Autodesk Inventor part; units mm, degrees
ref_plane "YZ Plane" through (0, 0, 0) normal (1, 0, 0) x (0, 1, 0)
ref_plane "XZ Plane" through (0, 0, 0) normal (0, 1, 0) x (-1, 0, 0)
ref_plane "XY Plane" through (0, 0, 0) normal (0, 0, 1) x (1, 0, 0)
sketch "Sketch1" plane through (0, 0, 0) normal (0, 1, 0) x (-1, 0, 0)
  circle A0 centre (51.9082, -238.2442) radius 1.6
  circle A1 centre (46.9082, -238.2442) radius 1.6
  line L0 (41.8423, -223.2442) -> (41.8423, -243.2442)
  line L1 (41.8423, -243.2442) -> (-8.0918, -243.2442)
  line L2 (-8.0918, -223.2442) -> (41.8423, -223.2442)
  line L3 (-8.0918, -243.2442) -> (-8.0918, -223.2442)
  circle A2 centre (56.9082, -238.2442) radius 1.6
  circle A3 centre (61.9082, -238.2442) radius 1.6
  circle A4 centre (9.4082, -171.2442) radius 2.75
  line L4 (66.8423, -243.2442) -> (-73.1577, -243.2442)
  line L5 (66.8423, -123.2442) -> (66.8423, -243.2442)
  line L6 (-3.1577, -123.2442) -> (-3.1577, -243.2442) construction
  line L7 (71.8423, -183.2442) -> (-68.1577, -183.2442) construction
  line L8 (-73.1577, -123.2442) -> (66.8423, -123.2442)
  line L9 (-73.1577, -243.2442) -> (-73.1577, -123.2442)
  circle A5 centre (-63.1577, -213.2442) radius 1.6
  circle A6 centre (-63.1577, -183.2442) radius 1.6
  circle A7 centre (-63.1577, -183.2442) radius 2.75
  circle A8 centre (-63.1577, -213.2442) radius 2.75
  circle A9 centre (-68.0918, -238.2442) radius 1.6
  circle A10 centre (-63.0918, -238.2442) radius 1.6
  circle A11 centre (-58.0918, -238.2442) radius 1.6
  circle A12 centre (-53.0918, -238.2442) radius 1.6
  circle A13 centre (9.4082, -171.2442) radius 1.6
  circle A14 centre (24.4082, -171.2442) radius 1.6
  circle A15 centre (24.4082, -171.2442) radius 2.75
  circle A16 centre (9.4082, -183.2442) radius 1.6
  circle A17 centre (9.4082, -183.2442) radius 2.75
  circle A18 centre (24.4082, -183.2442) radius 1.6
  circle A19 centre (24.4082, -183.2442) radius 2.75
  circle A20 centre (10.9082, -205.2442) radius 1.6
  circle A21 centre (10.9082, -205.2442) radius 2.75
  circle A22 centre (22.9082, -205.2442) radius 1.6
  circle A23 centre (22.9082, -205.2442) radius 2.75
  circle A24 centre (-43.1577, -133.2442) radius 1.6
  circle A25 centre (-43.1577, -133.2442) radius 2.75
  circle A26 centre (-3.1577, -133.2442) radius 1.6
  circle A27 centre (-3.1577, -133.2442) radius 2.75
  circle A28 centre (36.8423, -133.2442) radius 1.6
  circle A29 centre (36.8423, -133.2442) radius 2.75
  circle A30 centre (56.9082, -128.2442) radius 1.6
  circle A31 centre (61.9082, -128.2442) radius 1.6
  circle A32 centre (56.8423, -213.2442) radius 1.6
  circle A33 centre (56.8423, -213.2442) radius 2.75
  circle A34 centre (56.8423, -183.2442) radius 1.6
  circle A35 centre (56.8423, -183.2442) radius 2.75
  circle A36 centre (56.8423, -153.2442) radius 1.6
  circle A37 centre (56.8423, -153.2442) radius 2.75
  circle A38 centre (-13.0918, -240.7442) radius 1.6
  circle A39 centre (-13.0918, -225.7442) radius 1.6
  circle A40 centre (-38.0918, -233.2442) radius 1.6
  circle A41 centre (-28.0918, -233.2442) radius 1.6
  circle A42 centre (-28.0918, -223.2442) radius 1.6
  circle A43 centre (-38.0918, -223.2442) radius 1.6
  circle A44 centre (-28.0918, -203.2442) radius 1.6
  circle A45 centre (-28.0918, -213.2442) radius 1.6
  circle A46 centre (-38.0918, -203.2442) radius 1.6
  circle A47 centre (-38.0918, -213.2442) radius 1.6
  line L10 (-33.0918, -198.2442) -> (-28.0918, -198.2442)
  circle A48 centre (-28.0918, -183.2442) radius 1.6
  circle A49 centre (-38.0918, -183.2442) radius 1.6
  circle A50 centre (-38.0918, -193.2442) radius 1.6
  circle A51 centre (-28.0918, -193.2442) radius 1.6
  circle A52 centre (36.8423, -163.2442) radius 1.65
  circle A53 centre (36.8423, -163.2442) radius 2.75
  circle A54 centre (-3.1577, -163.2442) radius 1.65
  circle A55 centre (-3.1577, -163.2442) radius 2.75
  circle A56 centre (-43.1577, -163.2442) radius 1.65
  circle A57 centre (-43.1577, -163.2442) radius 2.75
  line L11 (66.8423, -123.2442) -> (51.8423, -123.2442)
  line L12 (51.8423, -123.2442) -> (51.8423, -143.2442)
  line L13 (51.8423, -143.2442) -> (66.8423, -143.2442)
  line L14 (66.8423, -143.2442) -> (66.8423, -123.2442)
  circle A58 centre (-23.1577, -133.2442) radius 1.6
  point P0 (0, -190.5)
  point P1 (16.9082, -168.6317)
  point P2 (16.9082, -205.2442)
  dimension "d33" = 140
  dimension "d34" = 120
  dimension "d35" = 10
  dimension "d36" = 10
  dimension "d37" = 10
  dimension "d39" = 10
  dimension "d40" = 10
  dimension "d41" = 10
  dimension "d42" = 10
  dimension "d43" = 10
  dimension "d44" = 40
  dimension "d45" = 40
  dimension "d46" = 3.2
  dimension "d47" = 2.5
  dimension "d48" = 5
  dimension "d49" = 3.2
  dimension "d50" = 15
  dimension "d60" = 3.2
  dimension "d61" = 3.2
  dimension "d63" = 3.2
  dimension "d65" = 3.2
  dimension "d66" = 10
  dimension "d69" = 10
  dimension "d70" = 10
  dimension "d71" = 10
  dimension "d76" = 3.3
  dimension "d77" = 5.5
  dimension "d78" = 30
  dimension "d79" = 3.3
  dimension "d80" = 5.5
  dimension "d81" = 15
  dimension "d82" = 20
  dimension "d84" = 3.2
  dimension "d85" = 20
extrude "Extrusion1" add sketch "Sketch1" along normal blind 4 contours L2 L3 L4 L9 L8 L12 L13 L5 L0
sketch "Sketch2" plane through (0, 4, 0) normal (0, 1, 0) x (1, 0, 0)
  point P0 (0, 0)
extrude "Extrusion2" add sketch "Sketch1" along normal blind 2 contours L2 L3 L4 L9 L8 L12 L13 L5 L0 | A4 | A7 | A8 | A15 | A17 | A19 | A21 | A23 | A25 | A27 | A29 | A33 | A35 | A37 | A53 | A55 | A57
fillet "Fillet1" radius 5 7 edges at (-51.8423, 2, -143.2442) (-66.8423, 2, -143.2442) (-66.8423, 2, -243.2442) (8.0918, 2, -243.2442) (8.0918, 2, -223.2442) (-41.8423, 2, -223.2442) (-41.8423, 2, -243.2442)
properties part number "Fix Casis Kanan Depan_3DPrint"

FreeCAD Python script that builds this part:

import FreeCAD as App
import Part
import Sketcher
from FreeCAD import Vector


def edges_at(feature, points):
    """Names of the edges that pass closest to the given points."""
    edges = feature.Shape.Edges
    near = lambda p: min(range(len(edges)), key=lambda i: edges[i].distToShape(Part.Vertex(*p))[0])
    return sorted({f"Edge{near(p) + 1}" for p in points})


def add_polygon(sketch, points):
    """Adds a closed chain of lines whose ends are joined by coincident constraints."""
    first, n = sketch.GeometryCount, len(points)
    for a, b in zip(points, points[1:] + points[:1]):
        sketch.addGeometry(Part.LineSegment(App.Vector(*a, 0), App.Vector(*b, 0)), False)
    for i in range(n):
        sketch.addConstraint(Sketcher.Constraint("Coincident", first + i, 2, first + (i + 1) % n, 1))

doc = App.newDocument("Part")
body = doc.addObject("PartDesign::Body", "Body")

# Sketch on XZ plane
sketch1 = body.newObject("Sketcher::SketchObject", "Sketch")
sketch1.AttachmentSupport = (doc.getObject("XZ_Plane"), [""])
sketch1.MapMode = "FlatFace"
add_polygon(sketch1, [(8.0918, -223.2442), (-41.8423, -223.2442), (-41.8423, -243.2442), (-66.8423, -243.2442), (-66.8423, -143.2442), (-51.8423, -143.2442), (-51.8423, -123.2442), (73.1577, -123.2442), (73.1577, -243.2442), (8.0918, -243.2442)])  # lines 0-9
sketch1.addGeometry(Part.Circle(Vector(68.0918, -238.2442, 0), Vector(0, 0, 1), 1.6), False)  # 10
sketch1.addGeometry(Part.Circle(Vector(63.0918, -238.2442, 0), Vector(0, 0, 1), 1.6), False)  # 11
sketch1.addGeometry(Part.Circle(Vector(58.0918, -238.2442, 0), Vector(0, 0, 1), 1.6), False)  # 12
sketch1.addGeometry(Part.Circle(Vector(53.0918, -238.2442, 0), Vector(0, 0, 1), 1.6), False)  # 13
sketch1.addGeometry(Part.Circle(Vector(38.0918, -233.2442, 0), Vector(0, 0, 1), 1.6), False)  # 14
sketch1.addGeometry(Part.Circle(Vector(28.0918, -233.2442, 0), Vector(0, 0, 1), 1.6), False)  # 15
sketch1.addGeometry(Part.Circle(Vector(13.0918, -240.7442, 0), Vector(0, 0, 1), 1.6), False)  # 16
sketch1.addGeometry(Part.Circle(Vector(38.0918, -223.2442, 0), Vector(0, 0, 1), 1.6), False)  # 17
sketch1.addGeometry(Part.Circle(Vector(28.0918, -223.2442, 0), Vector(0, 0, 1), 1.6), False)  # 18
sketch1.addGeometry(Part.Circle(Vector(13.0918, -225.7442, 0), Vector(0, 0, 1), 1.6), False)  # 19
sketch1.addGeometry(Part.Circle(Vector(63.1577, -213.2442, 0), Vector(0, 0, 1), 2.75), False)  # 20
sketch1.addGeometry(Part.Circle(Vector(38.0918, -213.2442, 0), Vector(0, 0, 1), 1.6), False)  # 21
sketch1.addGeometry(Part.Circle(Vector(28.0918, -213.2442, 0), Vector(0, 0, 1), 1.6), False)  # 22
sketch1.addGeometry(Part.Circle(Vector(38.0918, -203.2442, 0), Vector(0, 0, 1), 1.6), False)  # 23
sketch1.addGeometry(Part.Circle(Vector(28.0918, -203.2442, 0), Vector(0, 0, 1), 1.6), False)  # 24
sketch1.addGeometry(Part.Circle(Vector(38.0918, -193.2442, 0), Vector(0, 0, 1), 1.6), False)  # 25
sketch1.addGeometry(Part.Circle(Vector(28.0918, -193.2442, 0), Vector(0, 0, 1), 1.6), False)  # 26
sketch1.addGeometry(Part.Circle(Vector(-46.9082, -238.2442, 0), Vector(0, 0, 1), 1.6), False)  # 27
sketch1.addGeometry(Part.Circle(Vector(-51.9082, -238.2442, 0), Vector(0, 0, 1), 1.6), False)  # 28
sketch1.addGeometry(Part.Circle(Vector(-56.9082, -238.2442, 0), Vector(0, 0, 1), 1.6), False)  # 29
sketch1.addGeometry(Part.Circle(Vector(-61.9082, -238.2442, 0), Vector(0, 0, 1), 1.6), False)  # 30
sketch1.addGeometry(Part.Circle(Vector(-10.9082, -205.2442, 0), Vector(0, 0, 1), 2.75), False)  # 31
sketch1.addGeometry(Part.Circle(Vector(-22.9082, -205.2442, 0), Vector(0, 0, 1), 2.75), False)  # 32
sketch1.addGeometry(Part.Circle(Vector(-56.8423, -213.2442, 0), Vector(0, 0, 1), 2.75), False)  # 33
sketch1.addGeometry(Part.Circle(Vector(63.1577, -183.2442, 0), Vector(0, 0, 1), 2.75), False)  # 34
sketch1.addGeometry(Part.Circle(Vector(43.1577, -163.2442, 0), Vector(0, 0, 1), 2.75), False)  # 35
sketch1.addGeometry(Part.Circle(Vector(38.0918, -183.2442, 0), Vector(0, 0, 1), 1.6), False)  # 36
sketch1.addGeometry(Part.Circle(Vector(28.0918, -183.2442, 0), Vector(0, 0, 1), 1.6), False)  # 37
sketch1.addGeometry(Part.Circle(Vector(43.1577, -133.2442, 0), Vector(0, 0, 1), 2.75), False)  # 38
sketch1.addGeometry(Part.Circle(Vector(23.1577, -133.2442, 0), Vector(0, 0, 1), 1.6), False)  # 39
sketch1.addGeometry(Part.Circle(Vector(-9.4082, -183.2442, 0), Vector(0, 0, 1), 2.75), False)  # 40
sketch1.addGeometry(Part.Circle(Vector(-9.4082, -171.2442, 0), Vector(0, 0, 1), 2.75), False)  # 41
sketch1.addGeometry(Part.Circle(Vector(-24.4082, -183.2442, 0), Vector(0, 0, 1), 2.75), False)  # 42
sketch1.addGeometry(Part.Circle(Vector(-24.4082, -171.2442, 0), Vector(0, 0, 1), 2.75), False)  # 43
sketch1.addGeometry(Part.Circle(Vector(3.1577, -163.2442, 0), Vector(0, 0, 1), 2.75), False)  # 44
sketch1.addGeometry(Part.Circle(Vector(-56.8423, -183.2442, 0), Vector(0, 0, 1), 2.75), False)  # 45
sketch1.addGeometry(Part.Circle(Vector(-36.8423, -163.2442, 0), Vector(0, 0, 1), 2.75), False)  # 46
sketch1.addGeometry(Part.Circle(Vector(3.1577, -133.2442, 0), Vector(0, 0, 1), 2.75), False)  # 47
sketch1.addGeometry(Part.Circle(Vector(-56.8423, -153.2442, 0), Vector(0, 0, 1), 2.75), False)  # 48
sketch1.addGeometry(Part.Circle(Vector(-36.8423, -133.2442, 0), Vector(0, 0, 1), 2.75), False)  # 49
sketch1.addConstraint(Sketcher.Constraint("Horizontal", 0))
sketch1.addConstraint(Sketcher.Constraint("Vertical", 1))
sketch1.addConstraint(Sketcher.Constraint("Horizontal", 2))
sketch1.addConstraint(Sketcher.Constraint("Vertical", 3))
sketch1.addConstraint(Sketcher.Constraint("Horizontal", 4))
sketch1.addConstraint(Sketcher.Constraint("Vertical", 5))
sketch1.addConstraint(Sketcher.Constraint("Horizontal", 6))
sketch1.addConstraint(Sketcher.Constraint("Vertical", 7))
sketch1.addConstraint(Sketcher.Constraint("Horizontal", 8))
sketch1.addConstraint(Sketcher.Constraint("Vertical", 9))
sketch1.addConstraint(Sketcher.Constraint("Equal", 10, 11))
sketch1.addConstraint(Sketcher.Constraint("Equal", 11, 12))
sketch1.addConstraint(Sketcher.Constraint("Equal", 12, 13))
sketch1.addConstraint(Sketcher.Constraint("Equal", 13, 14))
sketch1.addConstraint(Sketcher.Constraint("Equal", 14, 15))
sketch1.addConstraint(Sketcher.Constraint("Equal", 15, 16))
sketch1.addConstraint(Sketcher.Constraint("Equal", 16, 17))
sketch1.addConstraint(Sketcher.Constraint("Equal", 17, 18))
sketch1.addConstraint(Sketcher.Constraint("Equal", 18, 19))
sketch1.addConstraint(Sketcher.Constraint("Equal", 19, 21))
sketch1.addConstraint(Sketcher.Constraint("Equal", 21, 22))
sketch1.addConstraint(Sketcher.Constraint("Equal", 22, 23))
sketch1.addConstraint(Sketcher.Constraint("Equal", 23, 24))
sketch1.addConstraint(Sketcher.Constraint("Equal", 24, 25))
sketch1.addConstraint(Sketcher.Constraint("Equal", 25, 26))
sketch1.addConstraint(Sketcher.Constraint("Equal", 26, 27))
sketch1.addConstraint(Sketcher.Constraint("Equal", 27, 28))
sketch1.addConstraint(Sketcher.Constraint("Equal", 28, 29))
sketch1.addConstraint(Sketcher.Constraint("Equal", 29, 30))
sketch1.addConstraint(Sketcher.Constraint("Equal", 20, 31))
sketch1.addConstraint(Sketcher.Constraint("Equal", 31, 32))
sketch1.addConstraint(Sketcher.Constraint("Equal", 32, 33))
sketch1.addConstraint(Sketcher.Constraint("Equal", 33, 34))
sketch1.addConstraint(Sketcher.Constraint("Equal", 34, 35))
sketch1.addConstraint(Sketcher.Constraint("Equal", 30, 36))
sketch1.addConstraint(Sketcher.Constraint("Equal", 36, 37))
sketch1.addConstraint(Sketcher.Constraint("Equal", 35, 38))
sketch1.addConstraint(Sketcher.Constraint("Equal", 37, 39))
sketch1.addConstraint(Sketcher.Constraint("Equal", 38, 40))
sketch1.addConstraint(Sketcher.Constraint("Equal", 40, 41))
sketch1.addConstraint(Sketcher.Constraint("Equal", 41, 42))
sketch1.addConstraint(Sketcher.Constraint("Equal", 42, 43))
sketch1.addConstraint(Sketcher.Constraint("Equal", 43, 44))
sketch1.addConstraint(Sketcher.Constraint("Equal", 44, 45))
sketch1.addConstraint(Sketcher.Constraint("Equal", 45, 46))
sketch1.addConstraint(Sketcher.Constraint("Equal", 46, 47))
sketch1.addConstraint(Sketcher.Constraint("Equal", 47, 48))
sketch1.addConstraint(Sketcher.Constraint("Equal", 48, 49))
sketch1.addConstraint(Sketcher.Constraint("Horizontal", 10, 3, 11, 3))
sketch1.addConstraint(Sketcher.Constraint("Horizontal", 11, 3, 12, 3))
sketch1.addConstraint(Sketcher.Constraint("Horizontal", 12, 3, 13, 3))
sketch1.addConstraint(Sketcher.Constraint("Horizontal", 14, 3, 15, 3))
sketch1.addConstraint(Sketcher.Constraint("Horizontal", 17, 3, 18, 3))
sketch1.addConstraint(Sketcher.Constraint("Horizontal", 20, 3, 21, 3))
sketch1.addConstraint(Sketcher.Constraint("Horizontal", 21, 3, 22, 3))
sketch1.addConstraint(Sketcher.Constraint("Horizontal", 23, 3, 24, 3))
sketch1.addConstraint(Sketcher.Constraint("Horizontal", 25, 3, 26, 3))
sketch1.addConstraint(Sketcher.Constraint("Horizontal", 13, 3, 27, 3))
sketch1.addConstraint(Sketcher.Constraint("Horizontal", 27, 3, 28, 3))
sketch1.addConstraint(Sketcher.Constraint("Horizontal", 28, 3, 29, 3))
sketch1.addConstraint(Sketcher.Constraint("Horizontal", 29, 3, 30, 3))
sketch1.addConstraint(Sketcher.Constraint("Horizontal", 31, 3, 32, 3))
sketch1.addConstraint(Sketcher.Constraint("Horizontal", 22, 3, 33, 3))
sketch1.addConstraint(Sketcher.Constraint("Horizontal", 34, 3, 36, 3))
sketch1.addConstraint(Sketcher.Constraint("Horizontal", 36, 3, 37, 3))
sketch1.addConstraint(Sketcher.Constraint("Horizontal", 38, 3, 39, 3))
sketch1.addConstraint(Sketcher.Constraint("Horizontal", 37, 3, 40, 3))
sketch1.addConstraint(Sketcher.Constraint("Horizontal", 40, 3, 42, 3))
sketch1.addConstraint(Sketcher.Constraint("Horizontal", 41, 3, 43, 3))
sketch1.addConstraint(Sketcher.Constraint("Horizontal", 35, 3, 44, 3))
sketch1.addConstraint(Sketcher.Constraint("Horizontal", 42, 3, 45, 3))
sketch1.addConstraint(Sketcher.Constraint("Horizontal", 44, 3, 46, 3))
sketch1.addConstraint(Sketcher.Constraint("Horizontal", 39, 3, 47, 3))
sketch1.addConstraint(Sketcher.Constraint("Horizontal", 47, 3, 49, 3))
sketch1.addConstraint(Sketcher.Constraint("Horizontal", 18, 3, 0, 2))
sketch1.addConstraint(Sketcher.Constraint("Horizontal", 2, 2, 7, 2))
sketch1.addConstraint(Sketcher.Constraint("Vertical", 14, 3, 17, 3))
sketch1.addConstraint(Sketcher.Constraint("Vertical", 15, 3, 18, 3))
sketch1.addConstraint(Sketcher.Constraint("Vertical", 16, 3, 19, 3))
sketch1.addConstraint(Sketcher.Constraint("Vertical", 17, 3, 21, 3))
sketch1.addConstraint(Sketcher.Constraint("Vertical", 18, 3, 22, 3))
sketch1.addConstraint(Sketcher.Constraint("Vertical", 21, 3, 23, 3))
sketch1.addConstraint(Sketcher.Constraint("Vertical", 22, 3, 24, 3))
sketch1.addConstraint(Sketcher.Constraint("Vertical", 23, 3, 25, 3))
sketch1.addConstraint(Sketcher.Constraint("Vertical", 24, 3, 26, 3))
sketch1.addConstraint(Sketcher.Constraint("Vertical", 20, 3, 34, 3))
sketch1.addConstraint(Sketcher.Constraint("Vertical", 25, 3, 36, 3))
sketch1.addConstraint(Sketcher.Constraint("Vertical", 26, 3, 37, 3))
sketch1.addConstraint(Sketcher.Constraint("Vertical", 35, 3, 38, 3))
sketch1.addConstraint(Sketcher.Constraint("Vertical", 40, 3, 41, 3))
sketch1.addConstraint(Sketcher.Constraint("Vertical", 42, 3, 43, 3))
sketch1.addConstraint(Sketcher.Constraint("Vertical", 33, 3, 45, 3))
sketch1.addConstraint(Sketcher.Constraint("Vertical", 44, 3, 47, 3))
sketch1.addConstraint(Sketcher.Constraint("Vertical", 45, 3, 48, 3))
sketch1.addConstraint(Sketcher.Constraint("Vertical", 46, 3, 49, 3))
sketch1.addConstraint(Sketcher.Constraint("Equal", 1, 5))
sketch1.addConstraint(Sketcher.Constraint("Diameter", 10, 3.2))
sketch1.addConstraint(Sketcher.Constraint("Diameter", 20, 5.5))
sketch1.addConstraint(Sketcher.Constraint("DistanceX", 4, 1, 4, 2, 15.0))
sketch1.addConstraint(Sketcher.Constraint("DistanceY", 1, 2, 1, 1, 20.0))
sketch1.addConstraint(Sketcher.Constraint("DistanceY", 7, 2, 7, 1, 120.0))
sketch1.addConstraint(Sketcher.Constraint("DistanceX", 11, 3, 10, 3, 5.0))
sketch1.addConstraint(Sketcher.Constraint("DistanceX", 12, 3, 11, 3, 5.0))
sketch1.addConstraint(Sketcher.Constraint("DistanceX", 13, 3, 12, 3, 5.0))
sketch1.addConstraint(Sketcher.Constraint("DistanceX", 14, 3, 13, 3, 15.0))
sketch1.addConstraint(Sketcher.Constraint("DistanceY", 13, 3, 14, 3, 5.0))
sketch1.addConstraint(Sketcher.Constraint("DistanceX", 15, 3, 14, 3, 10.0))
sketch1.addConstraint(Sketcher.Constraint("DistanceX", 16, 3, 15, 3, 15.0))
sketch1.addConstraint(Sketcher.Constraint("DistanceY", 14, 3, 17, 3, 10.0))
sketch1.addConstraint(Sketcher.Constraint("DistanceY", 16, 3, 19, 3, 15.0))
sketch1.addConstraint(Sketcher.Constraint("DistanceY", 17, 3, 20, 3, 10.0))
sketch1.addConstraint(Sketcher.Constraint("DistanceY", 21, 3, 23, 3, 10.0))
sketch1.addConstraint(Sketcher.Constraint("DistanceY", 23, 3, 25, 3, 10.0))
sketch1.addConstraint(Sketcher.Constraint("DistanceX", 28, 3, 27, 3, 5.0))
sketch1.addConstraint(Sketcher.Constraint("DistanceX", 29, 3, 28, 3, 5.0))
sketch1.addConstraint(Sketcher.Constraint("DistanceX", 30, 3, 29, 3, 5.0))
sketch1.addConstraint(Sketcher.Constraint("DistanceY", 25, 3, 34, 3, 10.0))
sketch1.addConstraint(Sketcher.Constraint("DistanceX", 35, 3, 34, 3, 20.0))
sketch1.addConstraint(Sketcher.Constraint("DistanceY", 34, 3, 35, 3, 20.0))
sketch1.addConstraint(Sketcher.Constraint("DistanceY", 35, 3, 38, 3, 30.0))
sketch1.addConstraint(Sketcher.Constraint("DistanceX", 39, 3, 38, 3, 20.0))
sketch1.addConstraint(Sketcher.Constraint("DistanceX", 42, 3, 40, 3, 15.0))
sketch1.addConstraint(Sketcher.Constraint("DistanceX", 45, 3, 46, 3, 20.0))
sketch1.addConstraint(Sketcher.Constraint("DistanceX", 47, 3, 39, 3, 20.0))
sketch1.addConstraint(Sketcher.Constraint("DistanceY", 46, 3, 48, 3, 10.0))
sketch1.addConstraint(Sketcher.Constraint("DistanceX", 49, 3, 47, 3, 40.0))
sketch1.addConstraint(Sketcher.Constraint("DistanceX", 33, 3, 0, 2, 15.0))
sketch1.addConstraint(Sketcher.Constraint("DistanceX", 3, 2, 48, 3, 10.0))
sketch1.addConstraint(Sketcher.Constraint("DistanceX", 38, 3, 6, 2, 30.0))
sketch1.addConstraint(Sketcher.Constraint("DistanceX", 8, 2, 16, 3, 5.0))
sketch1.addConstraint(Sketcher.Constraint("DistanceY", 16, 3, 13, 3, 2.5))
sketch1.addConstraint(Sketcher.Constraint("DistanceX", 27, 3, 16, 3, 60.0))
sketch1.addConstraint(Sketcher.Constraint("DistanceX", 31, 3, 19, 3, 24.0))
sketch1.addConstraint(Sketcher.Constraint("DistanceY", 31, 3, 24, 3, 2.0))
sketch1.addConstraint(Sketcher.Constraint("DistanceX", 32, 3, 31, 3, 12.0))
sketch1.addConstraint(Sketcher.Constraint("DistanceY", 40, 3, 41, 3, 12.0))
sketch1.addConstraint(Sketcher.Constraint("DistanceX", 31, 3, 40, 3, 1.5))
sketch1.addConstraint(Sketcher.Constraint("DistanceX", 0, 2, 0, 1, 49.934))
sketch1.addConstraint(Sketcher.Constraint("DistanceX", -1, 1, 10, 3, 68.0918))
sketch1.addConstraint(Sketcher.Constraint("DistanceY", 10, 3, -1, 1, 238.2442))
pad1 = body.newObject("PartDesign::Pad", "Pad")
pad1.Profile = sketch1
pad1.Length = 4
pad1.Reversed = True

# Sketch on XZ plane
sketch2 = body.newObject("Sketcher::SketchObject", "Sketch001")
sketch2.AttachmentSupport = (doc.getObject("XZ_Plane"), [""])
sketch2.MapMode = "FlatFace"
add_polygon(sketch2, [(8.0918, -223.2442), (-41.8423, -223.2442), (-41.8423, -243.2442), (-66.8423, -243.2442), (-66.8423, -143.2442), (-51.8423, -143.2442), (-51.8423, -123.2442), (73.1577, -123.2442), (73.1577, -243.2442), (8.0918, -243.2442)])  # lines 0-9
sketch2.addGeometry(Part.Circle(Vector(68.0918, -238.2442, 0), Vector(0, 0, 1), 1.6), False)  # 10
sketch2.addGeometry(Part.Circle(Vector(63.0918, -238.2442, 0), Vector(0, 0, 1), 1.6), False)  # 11
sketch2.addGeometry(Part.Circle(Vector(58.0918, -238.2442, 0), Vector(0, 0, 1), 1.6), False)  # 12
sketch2.addGeometry(Part.Circle(Vector(53.0918, -238.2442, 0), Vector(0, 0, 1), 1.6), False)  # 13
sketch2.addGeometry(Part.Circle(Vector(38.0918, -233.2442, 0), Vector(0, 0, 1), 1.6), False)  # 14
sketch2.addGeometry(Part.Circle(Vector(28.0918, -233.2442, 0), Vector(0, 0, 1), 1.6), False)  # 15
sketch2.addGeometry(Part.Circle(Vector(13.0918, -240.7442, 0), Vector(0, 0, 1), 1.6), False)  # 16
sketch2.addGeometry(Part.Circle(Vector(38.0918, -223.2442, 0), Vector(0, 0, 1), 1.6), False)  # 17
sketch2.addGeometry(Part.Circle(Vector(28.0918, -223.2442, 0), Vector(0, 0, 1), 1.6), False)  # 18
sketch2.addGeometry(Part.Circle(Vector(13.0918, -225.7442, 0), Vector(0, 0, 1), 1.6), False)  # 19
sketch2.addGeometry(Part.Circle(Vector(38.0918, -213.2442, 0), Vector(0, 0, 1), 1.6), False)  # 20
sketch2.addGeometry(Part.Circle(Vector(28.0918, -213.2442, 0), Vector(0, 0, 1), 1.6), False)  # 21
sketch2.addGeometry(Part.Circle(Vector(38.0918, -203.2442, 0), Vector(0, 0, 1), 1.6), False)  # 22
sketch2.addGeometry(Part.Circle(Vector(28.0918, -203.2442, 0), Vector(0, 0, 1), 1.6), False)  # 23
sketch2.addGeometry(Part.Circle(Vector(38.0918, -193.2442, 0), Vector(0, 0, 1), 1.6), False)  # 24
sketch2.addGeometry(Part.Circle(Vector(28.0918, -193.2442, 0), Vector(0, 0, 1), 1.6), False)  # 25
sketch2.addGeometry(Part.Circle(Vector(-46.9082, -238.2442, 0), Vector(0, 0, 1), 1.6), False)  # 26
sketch2.addGeometry(Part.Circle(Vector(-51.9082, -238.2442, 0), Vector(0, 0, 1), 1.6), False)  # 27
sketch2.addGeometry(Part.Circle(Vector(-56.9082, -238.2442, 0), Vector(0, 0, 1), 1.6), False)  # 28
sketch2.addGeometry(Part.Circle(Vector(-61.9082, -238.2442, 0), Vector(0, 0, 1), 1.6), False)  # 29
sketch2.addGeometry(Part.Circle(Vector(38.0918, -183.2442, 0), Vector(0, 0, 1), 1.6), False)  # 30
sketch2.addGeometry(Part.Circle(Vector(28.0918, -183.2442, 0), Vector(0, 0, 1), 1.6), False)  # 31
sketch2.addGeometry(Part.Circle(Vector(23.1577, -133.2442, 0), Vector(0, 0, 1), 1.6), False)  # 32
sketch2.addGeometry(Part.Circle(Vector(63.1577, -213.2442, 0), Vector(0, 0, 1), 1.6), False)  # 33
sketch2.addGeometry(Part.Circle(Vector(-10.9082, -205.2442, 0), Vector(0, 0, 1), 1.6), False)  # 34
sketch2.addGeometry(Part.Circle(Vector(-22.9082, -205.2442, 0), Vector(0, 0, 1), 1.6), False)  # 35
sketch2.addGeometry(Part.Circle(Vector(-56.8423, -213.2442, 0), Vector(0, 0, 1), 1.6), False)  # 36
sketch2.addGeometry(Part.Circle(Vector(63.1577, -183.2442, 0), Vector(0, 0, 1), 1.6), False)  # 37
sketch2.addGeometry(Part.Circle(Vector(43.1577, -163.2442, 0), Vector(0, 0, 1), 1.65), False)  # 38
sketch2.addGeometry(Part.Circle(Vector(43.1577, -133.2442, 0), Vector(0, 0, 1), 1.6), False)  # 39
sketch2.addGeometry(Part.Circle(Vector(-9.4082, -183.2442, 0), Vector(0, 0, 1), 1.6), False)  # 40
sketch2.addGeometry(Part.Circle(Vector(-9.4082, -171.2442, 0), Vector(0, 0, 1), 1.6), False)  # 41
sketch2.addGeometry(Part.Circle(Vector(-24.4082, -183.2442, 0), Vector(0, 0, 1), 1.6), False)  # 42
sketch2.addGeometry(Part.Circle(Vector(-24.4082, -171.2442, 0), Vector(0, 0, 1), 1.6), False)  # 43
sketch2.addGeometry(Part.Circle(Vector(3.1577, -163.2442, 0), Vector(0, 0, 1), 1.65), False)  # 44
sketch2.addGeometry(Part.Circle(Vector(-56.8423, -183.2442, 0), Vector(0, 0, 1), 1.6), False)  # 45
sketch2.addGeometry(Part.Circle(Vector(-36.8423, -163.2442, 0), Vector(0, 0, 1), 1.65), False)  # 46
sketch2.addGeometry(Part.Circle(Vector(3.1577, -133.2442, 0), Vector(0, 0, 1), 1.6), False)  # 47
sketch2.addGeometry(Part.Circle(Vector(-56.8423, -153.2442, 0), Vector(0, 0, 1), 1.6), False)  # 48
sketch2.addGeometry(Part.Circle(Vector(-36.8423, -133.2442, 0), Vector(0, 0, 1), 1.6), False)  # 49
sketch2.addConstraint(Sketcher.Constraint("Horizontal", 0))
sketch2.addConstraint(Sketcher.Constraint("Vertical", 1))
sketch2.addConstraint(Sketcher.Constraint("Horizontal", 2))
sketch2.addConstraint(Sketcher.Constraint("Vertical", 3))
sketch2.addConstraint(Sketcher.Constraint("Horizontal", 4))
sketch2.addConstraint(Sketcher.Constraint("Vertical", 5))
sketch2.addConstraint(Sketcher.Constraint("Horizontal", 6))
sketch2.addConstraint(Sketcher.Constraint("Vertical", 7))
sketch2.addConstraint(Sketcher.Constraint("Horizontal", 8))
sketch2.addConstraint(Sketcher.Constraint("Vertical", 9))
sketch2.addConstraint(Sketcher.Constraint("Equal", 10, 11))
sketch2.addConstraint(Sketcher.Constraint("Equal", 11, 12))
sketch2.addConstraint(Sketcher.Constraint("Equal", 12, 13))
sketch2.addConstraint(Sketcher.Constraint("Equal", 13, 14))
sketch2.addConstraint(Sketcher.Constraint("Equal", 14, 15))
sketch2.addConstraint(Sketcher.Constraint("Equal", 15, 16))
sketch2.addConstraint(Sketcher.Constraint("Equal", 16, 17))
sketch2.addConstraint(Sketcher.Constraint("Equal", 17, 18))
sketch2.addConstraint(Sketcher.Constraint("Equal", 18, 19))
sketch2.addConstraint(Sketcher.Constraint("Equal", 19, 20))
sketch2.addConstraint(Sketcher.Constraint("Equal", 20, 21))
sketch2.addConstraint(Sketcher.Constraint("Equal", 21, 22))
sketch2.addConstraint(Sketcher.Constraint("Equal", 22, 23))
sketch2.addConstraint(Sketcher.Constraint("Equal", 23, 24))
sketch2.addConstraint(Sketcher.Constraint("Equal", 24, 25))
sketch2.addConstraint(Sketcher.Constraint("Equal", 25, 26))
sketch2.addConstraint(Sketcher.Constraint("Equal", 26, 27))
sketch2.addConstraint(Sketcher.Constraint("Equal", 27, 28))
sketch2.addConstraint(Sketcher.Constraint("Equal", 28, 29))
sketch2.addConstraint(Sketcher.Constraint("Equal", 29, 30))
sketch2.addConstraint(Sketcher.Constraint("Equal", 30, 31))
sketch2.addConstraint(Sketcher.Constraint("Equal", 31, 32))
sketch2.addConstraint(Sketcher.Constraint("Equal", 32, 33))
sketch2.addConstraint(Sketcher.Constraint("Equal", 33, 34))
sketch2.addConstraint(Sketcher.Constraint("Equal", 34, 35))
sketch2.addConstraint(Sketcher.Constraint("Equal", 35, 36))
sketch2.addConstraint(Sketcher.Constraint("Equal", 36, 37))
sketch2.addConstraint(Sketcher.Constraint("Equal", 37, 39))
sketch2.addConstraint(Sketcher.Constraint("Equal", 39, 40))
sketch2.addConstraint(Sketcher.Constraint("Equal", 40, 41))
sketch2.addConstraint(Sketcher.Constraint("Equal", 41, 42))
sketch2.addConstraint(Sketcher.Constraint("Equal", 42, 43))
sketch2.addConstraint(Sketcher.Constraint("Equal", 38, 44))
sketch2.addConstraint(Sketcher.Constraint("Equal", 43, 45))
sketch2.addConstraint(Sketcher.Constraint("Equal", 44, 46))
sketch2.addConstraint(Sketcher.Constraint("Equal", 45, 47))
sketch2.addConstraint(Sketcher.Constraint("Equal", 47, 48))
sketch2.addConstraint(Sketcher.Constraint("Equal", 48, 49))
sketch2.addConstraint(Sketcher.Constraint("Horizontal", 10, 3, 11, 3))
sketch2.addConstraint(Sketcher.Constraint("Horizontal", 11, 3, 12, 3))
sketch2.addConstraint(Sketcher.Constraint("Horizontal", 12, 3, 13, 3))
sketch2.addConstraint(Sketcher.Constraint("Horizontal", 14, 3, 15, 3))
sketch2.addConstraint(Sketcher.Constraint("Horizontal", 17, 3, 18, 3))
sketch2.addConstraint(Sketcher.Constraint("Horizontal", 20, 3, 21, 3))
sketch2.addConstraint(Sketcher.Constraint("Horizontal", 22, 3, 23, 3))
sketch2.addConstraint(Sketcher.Constraint("Horizontal", 24, 3, 25, 3))
sketch2.addConstraint(Sketcher.Constraint("Horizontal", 13, 3, 26, 3))
sketch2.addConstraint(Sketcher.Constraint("Horizontal", 26, 3, 27, 3))
sketch2.addConstraint(Sketcher.Constraint("Horizontal", 27, 3, 28, 3))
sketch2.addConstraint(Sketcher.Constraint("Horizontal", 28, 3, 29, 3))
sketch2.addConstraint(Sketcher.Constraint("Horizontal", 30, 3, 31, 3))
sketch2.addConstraint(Sketcher.Constraint("Horizontal", 21, 3, 33, 3))
sketch2.addConstraint(Sketcher.Constraint("Horizontal", 34, 3, 35, 3))
sketch2.addConstraint(Sketcher.Constraint("Horizontal", 33, 3, 36, 3))
sketch2.addConstraint(Sketcher.Constraint("Horizontal", 31, 3, 37, 3))
sketch2.addConstraint(Sketcher.Constraint("Horizontal", 32, 3, 39, 3))
sketch2.addConstraint(Sketcher.Constraint("Horizontal", 37, 3, 40, 3))
sketch2.addConstraint(Sketcher.Constraint("Horizontal", 40, 3, 42, 3))
sketch2.addConstraint(Sketcher.Constraint("Horizontal", 41, 3, 43, 3))
sketch2.addConstraint(Sketcher.Constraint("Horizontal", 38, 3, 44, 3))
sketch2.addConstraint(Sketcher.Constraint("Horizontal", 42, 3, 45, 3))
sketch2.addConstraint(Sketcher.Constraint("Horizontal", 44, 3, 46, 3))
sketch2.addConstraint(Sketcher.Constraint("Horizontal", 39, 3, 47, 3))
sketch2.addConstraint(Sketcher.Constraint("Horizontal", 47, 3, 49, 3))
sketch2.addConstraint(Sketcher.Constraint("Horizontal", 18, 3, 0, 2))
sketch2.addConstraint(Sketcher.Constraint("Horizontal", 2, 2, 7, 2))
sketch2.addConstraint(Sketcher.Constraint("Vertical", 14, 3, 17, 3))
sketch2.addConstraint(Sketcher.Constraint("Vertical", 15, 3, 18, 3))
sketch2.addConstraint(Sketcher.Constraint("Vertical", 16, 3, 19, 3))
sketch2.addConstraint(Sketcher.Constraint("Vertical", 17, 3, 20, 3))
sketch2.addConstraint(Sketcher.Constraint("Vertical", 18, 3, 21, 3))
sketch2.addConstraint(Sketcher.Constraint("Vertical", 20, 3, 22, 3))
sketch2.addConstraint(Sketcher.Constraint("Vertical", 21, 3, 23, 3))
sketch2.addConstraint(Sketcher.Constraint("Vertical", 22, 3, 24, 3))
sketch2.addConstraint(Sketcher.Constraint("Vertical", 23, 3, 25, 3))
sketch2.addConstraint(Sketcher.Constraint("Vertical", 24, 3, 30, 3))
sketch2.addConstraint(Sketcher.Constraint("Vertical", 25, 3, 31, 3))
sketch2.addConstraint(Sketcher.Constraint("Vertical", 33, 3, 37, 3))
sketch2.addConstraint(Sketcher.Constraint("Vertical", 38, 3, 39, 3))
sketch2.addConstraint(Sketcher.Constraint("Vertical", 40, 3, 41, 3))
sketch2.addConstraint(Sketcher.Constraint("Vertical", 42, 3, 43, 3))
sketch2.addConstraint(Sketcher.Constraint("Vertical", 36, 3, 45, 3))
sketch2.addConstraint(Sketcher.Constraint("Vertical", 44, 3, 47, 3))
sketch2.addConstraint(Sketcher.Constraint("Vertical", 45, 3, 48, 3))
sketch2.addConstraint(Sketcher.Constraint("Vertical", 46, 3, 49, 3))
sketch2.addConstraint(Sketcher.Constraint("Equal", 1, 5))
sketch2.addConstraint(Sketcher.Constraint("Diameter", 10, 3.2))
sketch2.addConstraint(Sketcher.Constraint("Diameter", 38, 3.3))
sketch2.addConstraint(Sketcher.Constraint("DistanceX", 4, 1, 4, 2, 15.0))
sketch2.addConstraint(Sketcher.Constraint("DistanceY", 1, 2, 1, 1, 20.0))
sketch2.addConstraint(Sketcher.Constraint("DistanceY", 7, 2, 7, 1, 120.0))
sketch2.addConstraint(Sketcher.Constraint("DistanceX", 11, 3, 10, 3, 5.0))
sketch2.addConstraint(Sketcher.Constraint("DistanceX", 12, 3, 11, 3, 5.0))
sketch2.addConstraint(Sketcher.Constraint("DistanceX", 13, 3, 12, 3, 5.0))
sketch2.addConstraint(Sketcher.Constraint("DistanceX", 14, 3, 13, 3, 15.0))
sketch2.addConstraint(Sketcher.Constraint("DistanceY", 13, 3, 14, 3, 5.0))
sketch2.addConstraint(Sketcher.Constraint("DistanceX", 15, 3, 14, 3, 10.0))
sketch2.addConstraint(Sketcher.Constraint("DistanceX", 16, 3, 15, 3, 15.0))
sketch2.addConstraint(Sketcher.Constraint("DistanceY", 14, 3, 17, 3, 10.0))
sketch2.addConstraint(Sketcher.Constraint("DistanceY", 16, 3, 19, 3, 15.0))
sketch2.addConstraint(Sketcher.Constraint("DistanceY", 17, 3, 20, 3, 10.0))
sketch2.addConstraint(Sketcher.Constraint("DistanceY", 20, 3, 22, 3, 10.0))
sketch2.addConstraint(Sketcher.Constraint("DistanceY", 22, 3, 24, 3, 10.0))
sketch2.addConstraint(Sketcher.Constraint("DistanceX", 27, 3, 26, 3, 5.0))
sketch2.addConstraint(Sketcher.Constraint("DistanceX", 28, 3, 27, 3, 5.0))
sketch2.addConstraint(Sketcher.Constraint("DistanceX", 29, 3, 28, 3, 5.0))
sketch2.addConstraint(Sketcher.Constraint("DistanceY", 24, 3, 30, 3, 10.0))
sketch2.addConstraint(Sketcher.Constraint("DistanceY", 30, 3, 38, 3, 20.0))
sketch2.addConstraint(Sketcher.Constraint("DistanceX", 38, 3, 37, 3, 20.0))
sketch2.addConstraint(Sketcher.Constraint("DistanceX", 32, 3, 39, 3, 20.0))
sketch2.addConstraint(Sketcher.Constraint("DistanceY", 38, 3, 39, 3, 30.0))
sketch2.addConstraint(Sketcher.Constraint("DistanceX", 42, 3, 40, 3, 15.0))
sketch2.addConstraint(Sketcher.Constraint("DistanceX", 45, 3, 46, 3, 20.0))
sketch2.addConstraint(Sketcher.Constraint("DistanceX", 47, 3, 32, 3, 20.0))
sketch2.addConstraint(Sketcher.Constraint("DistanceY", 46, 3, 48, 3, 10.0))
sketch2.addConstraint(Sketcher.Constraint("DistanceX", 49, 3, 47, 3, 40.0))
sketch2.addConstraint(Sketcher.Constraint("DistanceX", 36, 3, 0, 2, 15.0))
sketch2.addConstraint(Sketcher.Constraint("DistanceX", 3, 2, 48, 3, 10.0))
sketch2.addConstraint(Sketcher.Constraint("DistanceX", 39, 3, 6, 2, 30.0))
sketch2.addConstraint(Sketcher.Constraint("DistanceX", 8, 2, 16, 3, 5.0))
sketch2.addConstraint(Sketcher.Constraint("DistanceY", 16, 3, 13, 3, 2.5))
sketch2.addConstraint(Sketcher.Constraint("DistanceX", 26, 3, 16, 3, 60.0))
sketch2.addConstraint(Sketcher.Constraint("DistanceX", 34, 3, 19, 3, 24.0))
sketch2.addConstraint(Sketcher.Constraint("DistanceY", 34, 3, 23, 3, 2.0))
sketch2.addConstraint(Sketcher.Constraint("DistanceX", 35, 3, 34, 3, 12.0))
sketch2.addConstraint(Sketcher.Constraint("DistanceY", 40, 3, 41, 3, 12.0))
sketch2.addConstraint(Sketcher.Constraint("DistanceX", 34, 3, 40, 3, 1.5))
sketch2.addConstraint(Sketcher.Constraint("DistanceX", 0, 2, 0, 1, 49.934))
sketch2.addConstraint(Sketcher.Constraint("DistanceX", -1, 1, 10, 3, 68.0918))
sketch2.addConstraint(Sketcher.Constraint("DistanceY", 10, 3, -1, 1, 238.2442))
pad2 = body.newObject("PartDesign::Pad", "Pad001")
pad2.Profile = sketch2
pad2.Length = 2
pad2.Reversed = True
doc.recompute()

fillet = body.newObject("PartDesign::Fillet", "Fillet")
fillet.Base = (pad2, edges_at(pad2, [
    (-51.842, 2, -143.244),
    (-66.842, 2, -143.244),
    (-66.842, 2, -243.244),
    (8.092, 2, -243.244),
    (8.092, 2, -223.244),
    (-41.842, 2, -223.244),
    (-41.842, 2, -243.244),
]))
fillet.Radius = 5

doc.recompute()
